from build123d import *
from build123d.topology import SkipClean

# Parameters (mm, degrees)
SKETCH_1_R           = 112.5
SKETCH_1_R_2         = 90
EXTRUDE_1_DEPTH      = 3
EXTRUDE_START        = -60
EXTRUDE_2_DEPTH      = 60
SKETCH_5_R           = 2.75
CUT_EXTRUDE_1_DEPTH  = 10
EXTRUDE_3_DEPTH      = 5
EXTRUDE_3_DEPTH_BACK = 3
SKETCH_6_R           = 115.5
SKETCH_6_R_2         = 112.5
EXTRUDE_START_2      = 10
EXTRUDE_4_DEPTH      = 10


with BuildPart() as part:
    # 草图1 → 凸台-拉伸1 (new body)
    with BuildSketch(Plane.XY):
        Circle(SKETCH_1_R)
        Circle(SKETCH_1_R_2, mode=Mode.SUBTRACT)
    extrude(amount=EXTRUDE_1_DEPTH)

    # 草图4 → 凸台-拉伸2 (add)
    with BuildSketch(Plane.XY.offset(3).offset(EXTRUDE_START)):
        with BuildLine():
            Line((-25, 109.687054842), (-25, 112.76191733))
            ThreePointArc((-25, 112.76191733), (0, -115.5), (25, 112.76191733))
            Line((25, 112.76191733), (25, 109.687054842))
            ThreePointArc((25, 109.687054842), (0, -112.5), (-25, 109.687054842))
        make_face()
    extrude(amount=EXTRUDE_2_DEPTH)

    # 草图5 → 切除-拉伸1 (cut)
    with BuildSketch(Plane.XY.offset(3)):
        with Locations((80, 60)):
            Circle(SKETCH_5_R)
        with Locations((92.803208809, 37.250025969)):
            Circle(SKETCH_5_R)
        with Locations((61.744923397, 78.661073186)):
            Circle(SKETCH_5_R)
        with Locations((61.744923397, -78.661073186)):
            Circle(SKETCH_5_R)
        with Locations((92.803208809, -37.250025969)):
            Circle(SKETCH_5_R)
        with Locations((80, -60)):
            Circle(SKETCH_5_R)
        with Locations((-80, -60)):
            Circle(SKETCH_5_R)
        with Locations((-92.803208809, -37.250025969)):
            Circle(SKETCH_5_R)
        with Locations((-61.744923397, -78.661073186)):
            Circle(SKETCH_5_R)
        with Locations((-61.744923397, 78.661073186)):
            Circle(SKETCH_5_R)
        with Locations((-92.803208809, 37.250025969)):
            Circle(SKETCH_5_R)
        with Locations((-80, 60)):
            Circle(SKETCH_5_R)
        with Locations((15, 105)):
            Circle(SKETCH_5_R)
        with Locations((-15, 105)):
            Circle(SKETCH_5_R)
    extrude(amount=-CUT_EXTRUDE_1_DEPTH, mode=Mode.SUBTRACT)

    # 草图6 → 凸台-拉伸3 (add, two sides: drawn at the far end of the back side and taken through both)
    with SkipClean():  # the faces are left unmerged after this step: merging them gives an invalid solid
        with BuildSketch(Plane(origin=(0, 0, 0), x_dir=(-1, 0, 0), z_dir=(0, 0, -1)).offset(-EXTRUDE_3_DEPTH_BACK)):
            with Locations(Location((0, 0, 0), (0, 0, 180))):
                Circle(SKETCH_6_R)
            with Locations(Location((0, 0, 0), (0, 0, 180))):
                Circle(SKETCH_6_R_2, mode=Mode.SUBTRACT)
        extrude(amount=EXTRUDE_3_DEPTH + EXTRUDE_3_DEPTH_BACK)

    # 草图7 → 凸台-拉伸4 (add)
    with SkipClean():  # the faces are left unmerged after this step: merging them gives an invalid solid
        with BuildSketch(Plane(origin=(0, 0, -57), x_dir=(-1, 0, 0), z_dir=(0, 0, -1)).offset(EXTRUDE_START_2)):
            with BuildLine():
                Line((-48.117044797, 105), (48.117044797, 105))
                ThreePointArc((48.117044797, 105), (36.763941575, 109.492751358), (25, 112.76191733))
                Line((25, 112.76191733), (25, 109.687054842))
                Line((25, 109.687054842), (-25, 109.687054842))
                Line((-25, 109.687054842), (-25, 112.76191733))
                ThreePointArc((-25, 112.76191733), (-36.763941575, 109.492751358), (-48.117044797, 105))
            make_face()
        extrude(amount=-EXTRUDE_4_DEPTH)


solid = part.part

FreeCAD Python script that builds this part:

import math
import FreeCAD as App
import Part
import Sketcher

doc = App.newDocument("Part")
body = doc.addObject("PartDesign::Body", "Body")

# Sketch on XY plane
sketch1 = body.newObject("Sketcher::SketchObject", "Sketch")
sketch1.AttachmentSupport = (doc.getObject("XY_Plane"), [""])
sketch1.MapMode = "FlatFace"
sketch1.addGeometry([
    Part.Circle(App.Vector(0, 0, 0), App.Vector(0, 0, 1), 112),
    Part.Circle(App.Vector(0, 0, 0), App.Vector(0, 0, 1), 90),
], False)
sketch1.addConstraint([
    Sketcher.Constraint("Coincident", 0, 3, -1, 1),
    Sketcher.Constraint("Coincident", 1, 3, -1, 1),
    Sketcher.Constraint("Diameter", 0, 225.0),
    Sketcher.Constraint("Diameter", 1, 180.0),
])
pad1 = body.newObject("PartDesign::Pad", "Pad")
pad1.Profile = sketch1
pad1.Length = 3

# Sketch on XY plane
sketch2 = body.newObject("Sketcher::SketchObject", "Sketch001")
sketch2.AttachmentSupport = (doc.getObject("XY_Plane"), [""])
sketch2.MapMode = "FlatFace"
sketch2.AttachmentOffset = App.Placement(App.Vector(0, 0, -57), App.Rotation())
sketch2.addGeometry([
    Part.LineSegment(App.Vector(-25, 109.7, 0), App.Vector(-25, 112.8, 0)),
    Part.ArcOfCircle(Part.Circle(App.Vector(0, 0, 0), App.Vector(0, 0, 1), 115.5), math.radians(103), math.radians(437)),
    Part.LineSegment(App.Vector(25, 112.8, 0), App.Vector(25, 109.7, 0)),
    Part.ArcOfCircle(Part.Circle(App.Vector(0, 0, 0), App.Vector(0, 0, 1), 112.5), math.radians(103), math.radians(437)),
], False)
sketch2.addConstraint([
    Sketcher.Constraint("Coincident", 0, 2, 1, 1),
    Sketcher.Constraint("Coincident", 1, 2, 2, 1),
    Sketcher.Constraint("Coincident", 2, 2, 3, 2),
    Sketcher.Constraint("Coincident", 3, 1, 0, 1),
    Sketcher.Constraint("Vertical", 0),
    Sketcher.Constraint("Vertical", 2),
    Sketcher.Constraint("Coincident", 1, 3, -1, 1),
    Sketcher.Constraint("Coincident", 3, 3, -1, 1),
    Sketcher.Constraint("Horizontal", 0, 2, 1, 2),
    Sketcher.Constraint("Radius", 1, 115.5),
    Sketcher.Constraint("Radius", 3, 112.5),
    Sketcher.Constraint("DistanceX", 0, 2, -1, 1, 25.0),
])
pad2 = body.newObject("PartDesign::Pad", "Pad001")
pad2.Profile = sketch2
pad2.Length = 60

# Sketch on XY plane
sketch3 = body.newObject("Sketcher::SketchObject", "Sketch002")
sketch3.AttachmentSupport = (doc.getObject("XY_Plane"), [""])
sketch3.MapMode = "FlatFace"
sketch3.AttachmentOffset = App.Placement(App.Vector(0, 0, 3), App.Rotation())
sketch3.addGeometry([
    Part.Circle(App.Vector(80, 60, 0), App.Vector(0, 0, 1), 2.8),  # 0
    Part.Circle(App.Vector(92.8, 37.3, 0), App.Vector(0, 0, 1), 2.8),  # 1
    Part.Circle(App.Vector(61.7, 78.7, 0), App.Vector(0, 0, 1), 2.8),  # 2
    Part.Circle(App.Vector(61.7, -78.7, 0), App.Vector(0, 0, 1), 2.8),  # 3
    Part.Circle(App.Vector(92.8, -37.3, 0), App.Vector(0, 0, 1), 2.8),  # 4
    Part.Circle(App.Vector(80, -60, 0), App.Vector(0, 0, 1), 2.8),  # 5
    Part.Circle(App.Vector(-80, -60, 0), App.Vector(0, 0, 1), 2.8),  # 6
    Part.Circle(App.Vector(-92.8, -37.3, 0), App.Vector(0, 0, 1), 2.8),  # 7
    Part.Circle(App.Vector(-61.7, -78.7, 0), App.Vector(0, 0, 1), 2.8),  # 8
    Part.Circle(App.Vector(-61.7, 78.7, 0), App.Vector(0, 0, 1), 2.8),  # 9
    Part.Circle(App.Vector(-92.8, 37.3, 0), App.Vector(0, 0, 1), 2.8),  # 10
    Part.Circle(App.Vector(-80, 60, 0), App.Vector(0, 0, 1), 2.8),  # 11
    Part.Circle(App.Vector(15, 105, 0), App.Vector(0, 0, 1), 2.8),  # 12
    Part.Circle(App.Vector(-15, 105, 0), App.Vector(0, 0, 1), 2.8),  # 13
], False)
sketch3.addConstraint([
    Sketcher.Constraint("Equal", 0, 1),
    Sketcher.Constraint("Equal", 1, 2),
    Sketcher.Constraint("Equal", 2, 3),
    Sketcher.Constraint("Equal", 3, 4),
    Sketcher.Constraint("Equal", 4, 5),
    Sketcher.Constraint("Equal", 5, 6),
    Sketcher.Constraint("Equal", 6, 7),
    Sketcher.Constraint("Equal", 7, 8),
    Sketcher.Constraint("Equal", 8, 9),
    Sketcher.Constraint("Equal", 9, 10),
    Sketcher.Constraint("Equal", 10, 11),
    Sketcher.Constraint("Equal", 11, 12),
    Sketcher.Constraint("Equal", 12, 13),
    Sketcher.Constraint("Symmetric", 0, 3, 6, 3, -1, 1),
    Sketcher.Constraint("Symmetric", 1, 3, 7, 3, -1, 1),
    Sketcher.Constraint("Symmetric", 2, 3, 8, 3, -1, 1),
    Sketcher.Constraint("Symmetric", 3, 3, 9, 3, -1, 1),
    Sketcher.Constraint("Symmetric", 4, 3, 10, 3, -1, 1),
    Sketcher.Constraint("Symmetric", 5, 3, 11, 3, -1, 1),
    Sketcher.Constraint("Symmetric", 5, 3, 6, 3, -2),
    Sketcher.Constraint("Symmetric", 4, 3, 7, 3, -2),
    Sketcher.Constraint("Symmetric", 3, 3, 8, 3, -2),
    Sketcher.Constraint("Symmetric", 12, 3, 13, 3, -2),
    Sketcher.Constraint("Diameter", 0, 5.5),
    Sketcher.Constraint("DistanceX", -1, 1, 0, 3, 80.0),
    Sketcher.Constraint("DistanceY", -1, 1, 0, 3, 60.0),
    Sketcher.Constraint("DistanceX", -1, 1, 12, 3, 15.0),
    Sketcher.Constraint("DistanceY", -1, 1, 12, 3, 105.0),
    Sketcher.Constraint("DistanceY", 3, 3, 1, 3, 115.911099),
    Sketcher.Constraint("DistanceX", -1, 1, 1, 3, 92.803209),
    Sketcher.Constraint("DistanceY", 4, 3, 1, 3, 74.500052),
    Sketcher.Constraint("DistanceX", -1, 1, 2, 3, 61.744923),
])
pocket1 = body.newObject("PartDesign::Pocket", "Pocket")
pocket1.Profile = sketch3
pocket1.Length = 10

# Sketch on XY plane
sketch4 = body.newObject("Sketcher::SketchObject", "Sketch003")
sketch4.AttachmentSupport = (doc.getObject("XY_Plane"), [""])
sketch4.MapMode = "FlatFace"
sketch4.addGeometry([
    Part.Circle(App.Vector(0, 0, 0), App.Vector(0, 0, 1), 116),
    Part.Circle(App.Vector(0, 0, 0), App.Vector(0, 0, 1), 112),
], False)
sketch4.addConstraint([
    Sketcher.Constraint("Coincident", 0, 3, -1, 1),
    Sketcher.Constraint("Coincident", 1, 3, -1, 1),
    Sketcher.Constraint("Diameter", 0, 231.0),
    Sketcher.Constraint("Diameter", 1, 225.0),
])
pad3 = body.newObject("PartDesign::Pad", "Pad002")
pad3.Profile = sketch4
pad3.Type = "TwoLengths"
pad3.Length = 5
pad3.Length2 = 3
pad3.Reversed = True

# Sketch on XY plane
sketch5 = body.newObject("Sketcher::SketchObject", "Sketch004")
sketch5.AttachmentSupport = (doc.getObject("XY_Plane"), [""])
sketch5.MapMode = "FlatFace"
sketch5.AttachmentOffset = App.Placement(App.Vector(0, 0, -67), App.Rotation())
sketch5.addGeometry([
    Part.LineSegment(App.Vector(48.1, 105, 0), App.Vector(-48.1, 105, 0)),  # 0
    Part.ArcOfCircle(Part.Circle(App.Vector(0, 0, 0), App.Vector(0, 0, 1), 115.5), math.radians(102.5), math.radians(114.62)),  # 1
    Part.LineSegment(App.Vector(-25, 112.8, 0), App.Vector(-25, 109.7, 0)),  # 2
    Part.LineSegment(App.Vector(-25, 109.7, 0), App.Vector(25, 109.7, 0)),  # 3
    Part.LineSegment(App.Vector(25, 109.7, 0), App.Vector(25, 112.8, 0)),  # 4
    Part.ArcOfCircle(Part.Circle(App.Vector(0, 0, 0), App.Vector(0, 0, 1), 115.5), math.radians(65.38), math.radians(77.5)),  # 5
], False)
sketch5.addConstraint([
    Sketcher.Constraint("Coincident", 0, 2, 1, 2),
    Sketcher.Constraint("Coincident", 1, 1, 2, 1),
    Sketcher.Constraint("Coincident", 2, 2, 3, 1),
    Sketcher.Constraint("Coincident", 3, 2, 4, 1),
    Sketcher.Constraint("Coincident", 4, 2, 5, 2),
    Sketcher.Constraint("Coincident", 5, 1, 0, 1),
    Sketcher.Constraint("Horizontal", 0),
    Sketcher.Constraint("Vertical", 2),
    Sketcher.Constraint("Horizontal", 3),
    Sketcher.Constraint("Vertical", 4),
    Sketcher.Constraint("Coincident", 1, 3, -1, 1),
    Sketcher.Constraint("Coincident", 5, 3, -1, 1),
    Sketcher.Constraint("Equal", 1, 5),
    Sketcher.Constraint("Horizontal", 1, 1, 4, 2),
    Sketcher.Constraint("Radius", 1, 115.5),
    Sketcher.Constraint("DistanceX", 3, 1, 3, 2, 50.0),
    Sketcher.Constraint("DistanceY", -1, 1, 0, 2, 105.0),
    Sketcher.Constraint("DistanceY", 2, 2, 2, 1, 3.074862),
])
pad4 = body.newObject("PartDesign::Pad", "Pad003")
pad4.Profile = sketch5
pad4.Length = 10

doc.recompute()
